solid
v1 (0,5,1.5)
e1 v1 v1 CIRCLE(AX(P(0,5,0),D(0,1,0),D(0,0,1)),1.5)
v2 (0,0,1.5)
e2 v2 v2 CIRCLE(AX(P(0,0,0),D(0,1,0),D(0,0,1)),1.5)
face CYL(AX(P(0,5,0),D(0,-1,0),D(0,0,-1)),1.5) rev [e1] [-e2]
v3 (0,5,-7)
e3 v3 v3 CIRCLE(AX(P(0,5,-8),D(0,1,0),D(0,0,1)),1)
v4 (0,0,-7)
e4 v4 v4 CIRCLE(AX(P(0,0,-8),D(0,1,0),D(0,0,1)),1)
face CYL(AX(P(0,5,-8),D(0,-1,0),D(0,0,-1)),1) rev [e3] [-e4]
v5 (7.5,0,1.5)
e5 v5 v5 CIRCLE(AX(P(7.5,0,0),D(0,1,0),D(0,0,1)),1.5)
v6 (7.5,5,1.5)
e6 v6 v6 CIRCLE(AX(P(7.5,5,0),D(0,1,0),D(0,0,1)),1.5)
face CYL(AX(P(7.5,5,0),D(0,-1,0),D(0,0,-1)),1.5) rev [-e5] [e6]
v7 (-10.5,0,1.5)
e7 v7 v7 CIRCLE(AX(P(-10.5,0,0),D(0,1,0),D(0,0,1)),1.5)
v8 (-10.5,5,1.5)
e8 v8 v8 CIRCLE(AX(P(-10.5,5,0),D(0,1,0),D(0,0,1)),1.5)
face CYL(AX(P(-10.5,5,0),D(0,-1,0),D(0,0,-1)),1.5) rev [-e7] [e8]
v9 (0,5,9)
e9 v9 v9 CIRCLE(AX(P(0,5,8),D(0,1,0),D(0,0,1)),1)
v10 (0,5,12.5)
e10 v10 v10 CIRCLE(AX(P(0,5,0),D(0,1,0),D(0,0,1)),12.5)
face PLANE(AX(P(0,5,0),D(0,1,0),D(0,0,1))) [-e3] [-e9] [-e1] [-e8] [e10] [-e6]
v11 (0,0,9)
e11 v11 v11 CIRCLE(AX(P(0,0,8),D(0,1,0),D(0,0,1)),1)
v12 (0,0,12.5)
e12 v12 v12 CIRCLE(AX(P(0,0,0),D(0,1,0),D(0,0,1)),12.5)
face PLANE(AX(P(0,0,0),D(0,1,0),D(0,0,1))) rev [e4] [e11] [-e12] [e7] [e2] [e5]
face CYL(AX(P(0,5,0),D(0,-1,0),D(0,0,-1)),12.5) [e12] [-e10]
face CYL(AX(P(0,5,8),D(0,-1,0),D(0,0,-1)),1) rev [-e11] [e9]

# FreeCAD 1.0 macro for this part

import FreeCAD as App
import Part
import Sketcher

doc = App.newDocument("Part")
body = doc.addObject("PartDesign::Body", "Body")

sketch1 = body.newObject("Sketcher::SketchObject", "Sketch")
sketch1.AttachmentSupport = (doc.getObject("XZ_Plane"), [""])
sketch1.MapMode = "FlatFace"
sketch1.addGeometry(Part.Circle(App.Vector(0, 0, 0), App.Vector(0, 0, 1), 12.5), False)
sketch1.addGeometry(Part.Circle(App.Vector(-10.5, 0, 0), App.Vector(0, 0, 1), 1.5), False)
sketch1.addGeometry(Part.Circle(App.Vector(0, -8, 0), App.Vector(0, 0, 1), 1), False)
sketch1.addGeometry(Part.Circle(App.Vector(7.5, 0, 0), App.Vector(0, 0, 1), 1.5), False)
sketch1.addGeometry(Part.Circle(App.Vector(0, 0, 0), App.Vector(0, 0, 1), 1.5), False)
sketch1.addGeometry(Part.Circle(App.Vector(0, 8, 0), App.Vector(0, 0, 1), 1), False)
sketch1.addConstraint(Sketcher.Constraint("Coincident", 0, 3, -1, 1))
sketch1.addConstraint(Sketcher.Constraint("Coincident", 4, 3, -1, 1))
sketch1.addConstraint(Sketcher.Constraint("Equal", 1, 3))
sketch1.addConstraint(Sketcher.Constraint("Equal", 3, 4))
sketch1.addConstraint(Sketcher.Constraint("Equal", 2, 5))
sketch1.addConstraint(Sketcher.Constraint("Symmetric", 2, 3, 5, 3, -1, 1))
sketch1.addConstraint(Sketcher.Constraint("PointOnObject", 1, 3, -1))
sketch1.addConstraint(Sketcher.Constraint("PointOnObject", 2, 3, -2))
sketch1.addConstraint(Sketcher.Constraint("PointOnObject", 3, 3, -1))
sketch1.addConstraint(Sketcher.Constraint("Diameter", 0, 25.0))
sketch1.addConstraint(Sketcher.Constraint("Diameter", 1, 3.0))
sketch1.addConstraint(Sketcher.Constraint("Diameter", 2, 2.0))
sketch1.addConstraint(Sketcher.Constraint("DistanceY", 2, 3, -1, 1, 8.0))
sketch1.addConstraint(Sketcher.Constraint("DistanceX", 1, 3, 3, 3, 18.0))
sketch1.addConstraint(Sketcher.Constraint("DistanceX", 1, 3, -1, 1, 10.5))
pad1 = body.newObject("PartDesign::Pad", "Pad")
pad1.Profile = sketch1
pad1.Length = 5
pad1.Reversed = True

doc.recompute()
